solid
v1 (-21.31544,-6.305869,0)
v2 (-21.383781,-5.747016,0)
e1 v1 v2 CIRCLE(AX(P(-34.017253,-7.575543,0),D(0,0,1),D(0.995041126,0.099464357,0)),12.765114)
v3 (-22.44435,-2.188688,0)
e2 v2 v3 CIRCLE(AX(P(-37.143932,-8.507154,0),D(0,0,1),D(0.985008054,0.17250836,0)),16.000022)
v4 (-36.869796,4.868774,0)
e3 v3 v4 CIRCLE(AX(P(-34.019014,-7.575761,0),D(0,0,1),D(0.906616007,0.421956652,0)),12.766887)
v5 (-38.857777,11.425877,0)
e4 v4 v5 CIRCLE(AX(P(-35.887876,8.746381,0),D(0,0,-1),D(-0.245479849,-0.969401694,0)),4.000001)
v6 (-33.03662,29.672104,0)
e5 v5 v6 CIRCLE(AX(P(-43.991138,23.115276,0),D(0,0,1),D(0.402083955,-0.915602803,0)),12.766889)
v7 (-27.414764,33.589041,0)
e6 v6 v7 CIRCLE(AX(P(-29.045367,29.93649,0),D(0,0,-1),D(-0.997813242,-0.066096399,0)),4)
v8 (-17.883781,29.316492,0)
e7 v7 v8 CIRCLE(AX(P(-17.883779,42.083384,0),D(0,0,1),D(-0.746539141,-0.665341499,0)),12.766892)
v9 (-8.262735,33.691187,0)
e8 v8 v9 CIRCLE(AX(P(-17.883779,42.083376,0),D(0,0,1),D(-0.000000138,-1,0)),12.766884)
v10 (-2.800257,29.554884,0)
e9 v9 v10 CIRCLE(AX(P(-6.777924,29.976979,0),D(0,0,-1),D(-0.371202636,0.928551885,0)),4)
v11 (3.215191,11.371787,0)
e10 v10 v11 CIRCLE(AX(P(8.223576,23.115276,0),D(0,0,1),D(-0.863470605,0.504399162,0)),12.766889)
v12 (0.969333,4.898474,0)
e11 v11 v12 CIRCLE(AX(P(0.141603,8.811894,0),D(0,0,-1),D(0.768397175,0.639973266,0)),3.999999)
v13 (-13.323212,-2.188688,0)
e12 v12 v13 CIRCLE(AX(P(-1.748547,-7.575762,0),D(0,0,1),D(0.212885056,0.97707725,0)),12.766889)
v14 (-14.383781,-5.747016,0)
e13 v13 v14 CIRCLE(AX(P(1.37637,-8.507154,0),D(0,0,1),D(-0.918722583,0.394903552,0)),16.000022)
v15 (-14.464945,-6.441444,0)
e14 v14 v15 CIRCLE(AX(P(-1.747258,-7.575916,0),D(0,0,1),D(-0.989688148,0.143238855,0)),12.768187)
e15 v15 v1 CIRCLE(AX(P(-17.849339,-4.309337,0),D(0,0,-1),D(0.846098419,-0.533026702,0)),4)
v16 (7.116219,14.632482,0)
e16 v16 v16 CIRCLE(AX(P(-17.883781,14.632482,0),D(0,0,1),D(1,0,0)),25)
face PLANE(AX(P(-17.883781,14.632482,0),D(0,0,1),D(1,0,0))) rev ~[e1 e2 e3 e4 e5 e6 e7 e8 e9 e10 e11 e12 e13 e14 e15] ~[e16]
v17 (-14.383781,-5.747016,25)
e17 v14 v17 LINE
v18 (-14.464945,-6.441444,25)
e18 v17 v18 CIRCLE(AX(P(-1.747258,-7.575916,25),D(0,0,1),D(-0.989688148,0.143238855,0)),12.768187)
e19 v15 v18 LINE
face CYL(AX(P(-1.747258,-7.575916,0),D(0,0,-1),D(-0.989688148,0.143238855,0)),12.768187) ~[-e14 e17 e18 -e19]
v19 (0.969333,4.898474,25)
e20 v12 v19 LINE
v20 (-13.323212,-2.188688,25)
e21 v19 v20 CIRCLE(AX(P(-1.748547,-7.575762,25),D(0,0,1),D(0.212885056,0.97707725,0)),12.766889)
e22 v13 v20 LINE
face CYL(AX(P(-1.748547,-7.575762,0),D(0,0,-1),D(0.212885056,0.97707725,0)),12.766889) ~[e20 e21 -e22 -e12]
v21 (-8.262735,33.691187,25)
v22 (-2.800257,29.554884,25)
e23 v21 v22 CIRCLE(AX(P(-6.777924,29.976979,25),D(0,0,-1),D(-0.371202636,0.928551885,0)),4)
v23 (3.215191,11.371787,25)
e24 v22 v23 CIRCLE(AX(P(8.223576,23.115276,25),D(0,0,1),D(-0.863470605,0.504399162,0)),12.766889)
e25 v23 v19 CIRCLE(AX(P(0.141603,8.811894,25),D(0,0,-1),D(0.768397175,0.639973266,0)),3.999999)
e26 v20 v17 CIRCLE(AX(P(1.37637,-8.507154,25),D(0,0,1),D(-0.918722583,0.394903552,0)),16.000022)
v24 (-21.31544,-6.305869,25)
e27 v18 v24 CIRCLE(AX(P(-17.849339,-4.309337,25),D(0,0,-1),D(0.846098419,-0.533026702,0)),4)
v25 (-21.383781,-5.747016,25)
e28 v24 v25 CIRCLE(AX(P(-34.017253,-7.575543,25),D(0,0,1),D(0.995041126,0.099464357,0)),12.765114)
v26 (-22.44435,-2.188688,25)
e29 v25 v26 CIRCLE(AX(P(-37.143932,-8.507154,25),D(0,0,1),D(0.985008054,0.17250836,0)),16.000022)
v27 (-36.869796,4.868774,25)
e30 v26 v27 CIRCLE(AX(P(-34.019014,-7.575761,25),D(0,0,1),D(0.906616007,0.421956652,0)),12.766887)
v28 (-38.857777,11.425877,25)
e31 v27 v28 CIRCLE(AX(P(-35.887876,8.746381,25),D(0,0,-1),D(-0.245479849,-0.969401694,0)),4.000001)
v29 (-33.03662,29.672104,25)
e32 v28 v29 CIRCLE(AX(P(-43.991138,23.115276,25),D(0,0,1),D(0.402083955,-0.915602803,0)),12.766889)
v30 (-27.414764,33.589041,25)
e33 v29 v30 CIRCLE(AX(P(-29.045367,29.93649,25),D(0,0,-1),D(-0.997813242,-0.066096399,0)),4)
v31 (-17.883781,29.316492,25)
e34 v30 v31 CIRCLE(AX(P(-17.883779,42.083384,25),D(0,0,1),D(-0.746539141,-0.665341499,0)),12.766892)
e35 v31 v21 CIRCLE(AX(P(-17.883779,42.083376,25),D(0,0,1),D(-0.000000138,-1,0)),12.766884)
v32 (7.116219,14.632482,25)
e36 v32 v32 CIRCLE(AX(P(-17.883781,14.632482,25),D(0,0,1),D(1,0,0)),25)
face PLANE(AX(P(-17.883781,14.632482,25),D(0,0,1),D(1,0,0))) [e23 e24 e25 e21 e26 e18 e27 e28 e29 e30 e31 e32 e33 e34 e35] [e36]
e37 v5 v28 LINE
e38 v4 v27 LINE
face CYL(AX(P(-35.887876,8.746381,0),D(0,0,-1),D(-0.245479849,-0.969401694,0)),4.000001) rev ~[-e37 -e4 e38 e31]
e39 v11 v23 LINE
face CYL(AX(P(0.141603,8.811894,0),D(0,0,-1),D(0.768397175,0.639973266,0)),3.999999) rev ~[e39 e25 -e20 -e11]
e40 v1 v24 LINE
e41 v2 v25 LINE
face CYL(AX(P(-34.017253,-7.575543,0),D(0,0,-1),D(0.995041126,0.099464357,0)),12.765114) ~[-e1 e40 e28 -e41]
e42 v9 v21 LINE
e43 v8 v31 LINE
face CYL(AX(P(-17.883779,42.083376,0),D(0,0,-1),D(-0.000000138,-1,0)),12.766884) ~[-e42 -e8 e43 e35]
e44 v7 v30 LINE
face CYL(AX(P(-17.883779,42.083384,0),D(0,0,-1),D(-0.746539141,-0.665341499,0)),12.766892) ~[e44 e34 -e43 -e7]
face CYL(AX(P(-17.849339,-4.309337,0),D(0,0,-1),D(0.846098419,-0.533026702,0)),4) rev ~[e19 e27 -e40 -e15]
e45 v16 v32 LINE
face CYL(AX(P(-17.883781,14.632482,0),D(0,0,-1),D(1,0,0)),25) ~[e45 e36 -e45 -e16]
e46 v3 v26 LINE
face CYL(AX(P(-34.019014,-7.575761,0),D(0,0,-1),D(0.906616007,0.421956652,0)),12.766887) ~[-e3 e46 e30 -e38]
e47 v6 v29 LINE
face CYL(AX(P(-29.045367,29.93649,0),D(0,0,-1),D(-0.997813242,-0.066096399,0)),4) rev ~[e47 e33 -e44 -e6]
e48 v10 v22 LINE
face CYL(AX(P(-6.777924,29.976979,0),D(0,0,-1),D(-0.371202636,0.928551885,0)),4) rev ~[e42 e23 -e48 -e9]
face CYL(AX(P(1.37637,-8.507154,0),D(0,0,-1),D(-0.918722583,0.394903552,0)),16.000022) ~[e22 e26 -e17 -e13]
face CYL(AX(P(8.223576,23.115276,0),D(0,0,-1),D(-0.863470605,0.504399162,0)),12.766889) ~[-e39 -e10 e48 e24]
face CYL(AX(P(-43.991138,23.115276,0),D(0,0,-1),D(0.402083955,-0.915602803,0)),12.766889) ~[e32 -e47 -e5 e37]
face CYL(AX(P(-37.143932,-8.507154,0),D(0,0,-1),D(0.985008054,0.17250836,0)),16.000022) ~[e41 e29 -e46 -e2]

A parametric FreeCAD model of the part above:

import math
import FreeCAD as App
import Part
import Sketcher

V = App.Vector

doc = App.newDocument("Part")
body = doc.addObject("PartDesign::Body", "Body")

# Sketch on XY plane
sketch1 = body.newObject("Sketcher::SketchObject", "Sketch")
sketch1.AttachmentSupport = (doc.getObject("XY_Plane"), [""])
sketch1.MapMode = "FlatFace"
sketch1.addGeometry([
    Part.Circle(V(-17.9, 14.6, 0), V(0, 0, 1), 25),  # 0
    Part.ArcOfCircle(Part.Circle(V(-29, 29.9, 0), V(0, 0, 1), 4), math.radians(66), math.radians(184)),  # 1
    Part.ArcOfCircle(Part.Circle(V(-17.9, 42.1, 0), V(0, 0, 1), 12.8), math.radians(-138), math.radians(-90)),  # 2
    Part.ArcOfCircle(Part.Circle(V(-17.9, 42.1, 0), V(0, 0, 1), 12.8), math.radians(-90), math.radians(-41)),  # 3
    Part.ArcOfCircle(Part.Circle(V(-6.8, 30, 0), V(0, 0, 1), 4), math.radians(-6), math.radians(112)),  # 4
    Part.ArcOfCircle(Part.Circle(V(8.2, 23.1, 0), V(0, 0, 1), 12.8), math.radians(150), math.radians(247)),  # 5
    Part.ArcOfCircle(Part.Circle(V(0.1, 8.8, 0), V(0, 0, 1), 4), math.radians(-78), math.radians(40)),  # 6
    Part.ArcOfCircle(Part.Circle(V(-1.7, -7.6, 0), V(0, 0, 1), 12.8), math.radians(78), math.radians(155)),  # 7
    Part.ArcOfCircle(Part.Circle(V(1.4, -8.5, 0), V(0, 0, 1), 16), math.radians(156.74), math.radians(170.07)),  # 8
    Part.ArcOfCircle(Part.Circle(V(-1.7, -7.6, 0), V(0, 0, 1), 12.8), math.radians(171.76), math.radians(174.9)),  # 9
    Part.ArcOfCircle(Part.Circle(V(-17.8, -4.3, 0), V(0, 0, 1), 4), math.radians(-150), math.radians(-32)),  # 10
    Part.ArcOfCircle(Part.Circle(V(-34, -7.6, 0), V(0, 0, 1), 12.8), math.radians(5.71), math.radians(8.24)),  # 11
    Part.ArcOfCircle(Part.Circle(V(-37.1, -8.5, 0), V(0, 0, 1), 16), math.radians(9.93), math.radians(23.26)),  # 12
    Part.ArcOfCircle(Part.Circle(V(-34, -7.6, 0), V(0, 0, 1), 12.8), math.radians(25), math.radians(103)),  # 13
    Part.ArcOfCircle(Part.Circle(V(-35.9, 8.7, 0), V(0, 0, 1), 4), math.radians(138), math.radians(256)),  # 14
    Part.ArcOfCircle(Part.Circle(V(-44, 23.1, 0), V(0, 0, 1), 12.8), math.radians(-66), math.radians(31)),  # 15
], False)
sketch1.addConstraint([
    Sketcher.Constraint("Coincident", 1, 1, 2, 1),
    Sketcher.Constraint("Tangent", 2, 2, 3, 1),
    Sketcher.Constraint("Coincident", 3, 2, 4, 2),
    Sketcher.Constraint("Coincident", 4, 1, 5, 1),
    Sketcher.Constraint("Coincident", 5, 2, 6, 2),
    Sketcher.Constraint("Coincident", 6, 1, 7, 1),
    Sketcher.Constraint("Coincident", 7, 2, 8, 1),
    Sketcher.Constraint("Coincident", 8, 2, 9, 1),
    Sketcher.Constraint("Coincident", 9, 2, 10, 2),
    Sketcher.Constraint("Coincident", 10, 1, 11, 1),
    Sketcher.Constraint("Coincident", 11, 2, 12, 1),
    Sketcher.Constraint("Coincident", 12, 2, 13, 1),
    Sketcher.Constraint("Coincident", 13, 2, 14, 2),
    Sketcher.Constraint("Coincident", 14, 1, 15, 1),
    Sketcher.Constraint("Coincident", 15, 2, 1, 2),
    Sketcher.Constraint("Equal", 1, 4),
    Sketcher.Constraint("Equal", 4, 6),
    Sketcher.Constraint("Equal", 5, 7),
    Sketcher.Constraint("Equal", 6, 10),
    Sketcher.Constraint("Equal", 8, 12),
    Sketcher.Constraint("Equal", 7, 13),
    Sketcher.Constraint("Equal", 10, 14),
    Sketcher.Constraint("Equal", 7, 15),
    Sketcher.Constraint("Horizontal", 8, 3, 12, 3),
    Sketcher.Constraint("Horizontal", 7, 3, 13, 3),
    Sketcher.Constraint("Horizontal", 5, 3, 15, 3),
    Sketcher.Constraint("Horizontal", 8, 2, 11, 2),
    Sketcher.Constraint("Horizontal", 7, 2, 12, 2),
    Sketcher.Constraint("Vertical", 0, 3, 2, 3),
    Sketcher.Constraint("Vertical", 3, 3, 2, 2),
    Sketcher.Constraint("Diameter", 0, 50.0),
    Sketcher.Constraint("Radius", 1, 4.0),
    Sketcher.Constraint("DistanceX", 11, 2, 8, 2, 7.0),
    Sketcher.Constraint("Radius", 5, 12.766889),
    Sketcher.Constraint("Radius", 2, 12.766892),
    Sketcher.Constraint("Radius", 3, 12.766884),
    Sketcher.Constraint("Radius", 8, 16.000022),
    Sketcher.Constraint("Radius", 9, 12.768187),
    Sketcher.Constraint("Radius", 11, 12.765114),
    Sketcher.Constraint("DistanceX", 4, 3, 5, 3, 15.001501),
    Sketcher.Constraint("DistanceY", 5, 3, 3, 3, 18.9681),
    Sketcher.Constraint("DistanceY", 9, 3, 0, 3, 22.208398),
    Sketcher.Constraint("DistanceY", 14, 3, 0, 3, 5.886101),
    Sketcher.Constraint("DistanceY", 9, 3, 8, 2, 1.8289),
    Sketcher.Constraint("DistanceX", 9, 2, 7, 3, 12.716398),
    Sketcher.Constraint("DistanceX", 10, 1, 10, 3, 3.466101),
    Sketcher.Constraint("DistanceX", 14, 1, 14, 3, 2.969901),
    Sketcher.Constraint("DistanceY", 14, 1, 15, 3, 11.689399),
    Sketcher.Constraint("DistanceX", 0, 3, -1, 1, 17.883781),
    Sketcher.Constraint("DistanceY", -1, 1, 1, 3, 29.93649),
    Sketcher.Constraint("DistanceY", -1, 1, 4, 3, 29.976979),
    Sketcher.Constraint("DistanceX", -1, 1, 8, 3, 1.37637),
    Sketcher.Constraint("DistanceX", 10, 3, -1, 1, 17.849339),
    Sketcher.Constraint("DistanceX", 12, 3, -1, 1, 37.143932),
    Sketcher.Constraint("DistanceY", 13, 3, -1, 1, 7.575761),
    Sketcher.Constraint("DistanceY", -1, 1, 14, 3, 8.746381),
    Sketcher.Constraint("DistanceX", 15, 3, -1, 1, 43.991138),
    Sketcher.Constraint("DistanceY", -1, 1, 1, 1, 33.589041),
    Sketcher.Constraint("DistanceX", -1, 1, 5, 2, 3.215191),
    Sketcher.Constraint("DistanceY", 10, 1, -1, 1, 6.305869),
    Sketcher.Constraint("DistanceY", 6, 3, 5, 3, 14.303382),
    Sketcher.Constraint("DistanceX", 1, 3, 6, 3, 29.18697),
])
pad1 = body.newObject("PartDesign::Pad", "Pad")
pad1.Profile = sketch1
pad1.Length = 25

doc.recompute()
